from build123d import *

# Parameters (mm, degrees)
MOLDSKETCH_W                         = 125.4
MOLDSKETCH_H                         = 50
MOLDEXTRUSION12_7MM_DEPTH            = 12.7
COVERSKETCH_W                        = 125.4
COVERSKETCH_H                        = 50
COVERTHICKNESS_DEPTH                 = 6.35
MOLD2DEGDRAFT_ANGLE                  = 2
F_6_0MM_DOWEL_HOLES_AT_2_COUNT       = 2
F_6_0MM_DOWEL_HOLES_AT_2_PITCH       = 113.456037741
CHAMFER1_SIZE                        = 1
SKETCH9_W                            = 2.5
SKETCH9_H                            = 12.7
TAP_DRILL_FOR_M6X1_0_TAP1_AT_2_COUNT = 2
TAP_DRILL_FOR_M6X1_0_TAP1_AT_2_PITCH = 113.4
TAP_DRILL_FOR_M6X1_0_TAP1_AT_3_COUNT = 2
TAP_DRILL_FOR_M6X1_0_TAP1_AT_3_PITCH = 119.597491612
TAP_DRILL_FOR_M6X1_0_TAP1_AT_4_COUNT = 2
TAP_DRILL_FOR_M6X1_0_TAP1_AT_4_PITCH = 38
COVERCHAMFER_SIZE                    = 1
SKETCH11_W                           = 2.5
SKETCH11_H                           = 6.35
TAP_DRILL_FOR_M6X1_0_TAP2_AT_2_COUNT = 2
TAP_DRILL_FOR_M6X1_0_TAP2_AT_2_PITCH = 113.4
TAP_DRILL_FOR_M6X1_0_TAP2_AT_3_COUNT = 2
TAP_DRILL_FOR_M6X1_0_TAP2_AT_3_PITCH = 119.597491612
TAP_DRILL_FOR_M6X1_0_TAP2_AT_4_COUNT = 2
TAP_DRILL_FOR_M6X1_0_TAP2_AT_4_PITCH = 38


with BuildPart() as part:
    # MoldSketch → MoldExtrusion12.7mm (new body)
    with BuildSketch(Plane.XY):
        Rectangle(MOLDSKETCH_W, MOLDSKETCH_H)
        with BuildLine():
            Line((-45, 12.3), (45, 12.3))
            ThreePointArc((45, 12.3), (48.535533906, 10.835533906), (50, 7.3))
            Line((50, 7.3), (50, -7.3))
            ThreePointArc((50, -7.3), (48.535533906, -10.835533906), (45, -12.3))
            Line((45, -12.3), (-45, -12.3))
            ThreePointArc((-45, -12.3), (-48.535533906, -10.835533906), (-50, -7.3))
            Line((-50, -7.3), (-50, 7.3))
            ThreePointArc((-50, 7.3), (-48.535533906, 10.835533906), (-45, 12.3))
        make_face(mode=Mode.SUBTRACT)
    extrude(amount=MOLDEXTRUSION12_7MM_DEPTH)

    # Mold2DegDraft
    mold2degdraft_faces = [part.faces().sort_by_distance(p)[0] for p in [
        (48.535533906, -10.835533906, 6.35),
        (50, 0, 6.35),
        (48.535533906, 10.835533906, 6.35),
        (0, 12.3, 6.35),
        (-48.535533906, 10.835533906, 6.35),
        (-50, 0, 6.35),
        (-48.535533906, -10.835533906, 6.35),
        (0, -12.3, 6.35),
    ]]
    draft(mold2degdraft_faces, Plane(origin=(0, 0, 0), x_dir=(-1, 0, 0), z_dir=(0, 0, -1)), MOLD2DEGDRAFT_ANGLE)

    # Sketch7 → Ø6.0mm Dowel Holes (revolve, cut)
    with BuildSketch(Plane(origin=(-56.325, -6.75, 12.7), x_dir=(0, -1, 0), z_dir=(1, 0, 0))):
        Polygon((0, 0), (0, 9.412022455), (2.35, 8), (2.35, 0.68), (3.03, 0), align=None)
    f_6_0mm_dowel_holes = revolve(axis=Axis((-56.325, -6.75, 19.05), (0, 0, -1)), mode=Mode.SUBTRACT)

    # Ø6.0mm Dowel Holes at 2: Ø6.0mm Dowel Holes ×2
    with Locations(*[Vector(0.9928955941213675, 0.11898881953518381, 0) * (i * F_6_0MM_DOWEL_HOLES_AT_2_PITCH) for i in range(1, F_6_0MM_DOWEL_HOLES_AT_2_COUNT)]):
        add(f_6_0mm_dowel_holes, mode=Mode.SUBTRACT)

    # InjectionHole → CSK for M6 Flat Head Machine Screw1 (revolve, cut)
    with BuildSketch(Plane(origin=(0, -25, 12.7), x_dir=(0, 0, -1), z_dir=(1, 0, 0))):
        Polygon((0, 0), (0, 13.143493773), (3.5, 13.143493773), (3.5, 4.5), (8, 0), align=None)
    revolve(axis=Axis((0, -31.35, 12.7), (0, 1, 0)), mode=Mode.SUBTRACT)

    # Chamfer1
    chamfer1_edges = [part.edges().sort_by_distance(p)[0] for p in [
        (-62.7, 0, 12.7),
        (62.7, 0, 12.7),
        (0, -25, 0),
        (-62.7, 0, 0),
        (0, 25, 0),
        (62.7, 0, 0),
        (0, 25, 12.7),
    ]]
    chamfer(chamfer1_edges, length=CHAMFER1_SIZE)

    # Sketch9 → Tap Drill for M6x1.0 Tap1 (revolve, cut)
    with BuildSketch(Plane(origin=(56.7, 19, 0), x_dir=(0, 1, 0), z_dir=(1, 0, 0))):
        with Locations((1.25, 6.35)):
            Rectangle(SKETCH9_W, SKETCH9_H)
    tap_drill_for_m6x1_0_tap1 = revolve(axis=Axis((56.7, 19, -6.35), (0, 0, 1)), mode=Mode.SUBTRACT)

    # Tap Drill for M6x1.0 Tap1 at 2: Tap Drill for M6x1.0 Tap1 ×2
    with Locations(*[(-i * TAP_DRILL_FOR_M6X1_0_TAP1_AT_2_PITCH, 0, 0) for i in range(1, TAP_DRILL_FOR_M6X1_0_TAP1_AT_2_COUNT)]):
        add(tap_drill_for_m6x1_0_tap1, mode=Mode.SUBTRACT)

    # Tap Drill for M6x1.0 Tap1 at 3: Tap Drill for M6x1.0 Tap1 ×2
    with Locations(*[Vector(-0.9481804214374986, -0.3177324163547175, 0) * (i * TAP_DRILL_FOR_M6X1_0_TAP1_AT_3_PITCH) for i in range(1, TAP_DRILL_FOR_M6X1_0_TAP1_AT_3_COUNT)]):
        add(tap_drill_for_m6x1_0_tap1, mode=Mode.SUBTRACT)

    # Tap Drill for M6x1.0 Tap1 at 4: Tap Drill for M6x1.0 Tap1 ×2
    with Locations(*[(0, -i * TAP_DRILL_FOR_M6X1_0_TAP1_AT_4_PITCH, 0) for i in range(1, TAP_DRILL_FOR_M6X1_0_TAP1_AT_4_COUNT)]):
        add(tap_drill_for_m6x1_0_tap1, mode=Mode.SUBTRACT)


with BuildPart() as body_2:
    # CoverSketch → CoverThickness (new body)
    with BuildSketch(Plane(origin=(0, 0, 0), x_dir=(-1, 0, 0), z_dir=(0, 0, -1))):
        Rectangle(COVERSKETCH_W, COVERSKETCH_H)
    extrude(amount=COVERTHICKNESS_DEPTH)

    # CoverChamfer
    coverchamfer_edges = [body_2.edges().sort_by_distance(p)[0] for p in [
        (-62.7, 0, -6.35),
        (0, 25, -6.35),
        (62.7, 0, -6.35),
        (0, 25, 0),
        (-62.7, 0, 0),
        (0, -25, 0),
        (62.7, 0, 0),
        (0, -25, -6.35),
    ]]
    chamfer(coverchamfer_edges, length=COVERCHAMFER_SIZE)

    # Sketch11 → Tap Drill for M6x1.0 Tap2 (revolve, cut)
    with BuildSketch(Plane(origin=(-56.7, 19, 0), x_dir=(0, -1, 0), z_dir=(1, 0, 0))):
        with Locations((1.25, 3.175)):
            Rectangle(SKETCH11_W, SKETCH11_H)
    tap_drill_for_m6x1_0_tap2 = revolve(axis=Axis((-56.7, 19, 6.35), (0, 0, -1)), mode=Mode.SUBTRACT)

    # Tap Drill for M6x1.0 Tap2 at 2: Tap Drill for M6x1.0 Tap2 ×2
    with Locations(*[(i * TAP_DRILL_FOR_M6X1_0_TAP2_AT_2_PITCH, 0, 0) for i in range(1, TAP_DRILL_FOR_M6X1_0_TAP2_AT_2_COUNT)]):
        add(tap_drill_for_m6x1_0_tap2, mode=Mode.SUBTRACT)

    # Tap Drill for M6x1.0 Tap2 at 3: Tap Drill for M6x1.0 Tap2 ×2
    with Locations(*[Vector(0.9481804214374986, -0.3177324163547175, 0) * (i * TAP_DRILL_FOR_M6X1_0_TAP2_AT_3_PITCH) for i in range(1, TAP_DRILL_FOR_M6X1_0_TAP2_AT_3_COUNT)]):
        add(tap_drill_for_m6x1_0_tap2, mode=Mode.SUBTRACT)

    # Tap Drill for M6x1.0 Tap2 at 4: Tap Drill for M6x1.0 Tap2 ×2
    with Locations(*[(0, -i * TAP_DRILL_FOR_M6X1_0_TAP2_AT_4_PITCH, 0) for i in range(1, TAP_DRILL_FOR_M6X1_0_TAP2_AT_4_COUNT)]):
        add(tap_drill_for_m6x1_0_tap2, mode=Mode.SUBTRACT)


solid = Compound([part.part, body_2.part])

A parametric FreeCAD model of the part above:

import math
import FreeCAD as App
import Part
import Sketcher

V = App.Vector
Q = App.Units.Quantity


def edges_at(feature, points):
    """Names of the edges that pass closest to the given points."""
    edges = feature.Shape.Edges
    near = lambda p: min(range(len(edges)), key=lambda i: edges[i].distToShape(Part.Vertex(*p))[0])
    return sorted({f"Edge{near(p) + 1}" for p in points})


def faces_at(feature, points):
    """Names of the faces that lie closest to the given points."""
    faces = feature.Shape.Faces
    near = lambda p: min(range(len(faces)), key=lambda i: faces[i].distToShape(Part.Vertex(*p))[0])
    return sorted({f"Face{near(p) + 1}" for p in points})

doc = App.newDocument("Part")
body = doc.addObject("PartDesign::Body", "Body")

# Sketch on XY plane
sketch1 = doc.addObject("Sketcher::SketchObject", "Sketch")
body.addObject(sketch1)
sketch1.AttachmentSupport = (doc.XY_Plane, [""])
sketch1.MapMode = "FlatFace"
sketch1.addGeometry([
    Part.LineSegment(V(-63, 25, 0), V(-63, -25, 0)),  # 0
    Part.LineSegment(V(-63, -25, 0), V(63, -25, 0)),  # 1
    Part.LineSegment(V(63, -25, 0), V(63, 25, 0)),  # 2
    Part.LineSegment(V(63, 25, 0), V(-63, 25, 0)),  # 3
    Part.ArcOfCircle(Part.Circle(V(-45, 7, 0), V(0, 0, 1), 5), math.radians(90), math.radians(180)),  # 4
    Part.LineSegment(V(-45, 12, 0), V(45, 12, 0)),  # 5
    Part.ArcOfCircle(Part.Circle(V(45, 7, 0), V(0, 0, 1), 5), math.radians(0), math.radians(90)),  # 6
    Part.LineSegment(V(50, 7, 0), V(50, -7, 0)),  # 7
    Part.ArcOfCircle(Part.Circle(V(45, -7, 0), V(0, 0, 1), 5), math.radians(-90), math.radians(0)),  # 8
    Part.LineSegment(V(45, -12, 0), V(-45, -12, 0)),  # 9
    Part.ArcOfCircle(Part.Circle(V(-45, -7, 0), V(0, 0, 1), 5), math.radians(180), math.radians(270)),  # 10
    Part.LineSegment(V(-50, -7, 0), V(-50, 7, 0)),  # 11
], False)
sketch1.addConstraint([
    Sketcher.Constraint("Coincident", 0, 2, 1, 1),
    Sketcher.Constraint("Coincident", 1, 2, 2, 1),
    Sketcher.Constraint("Coincident", 2, 2, 3, 1),
    Sketcher.Constraint("Coincident", 3, 2, 0, 1),
    Sketcher.Constraint("Tangent", 4, 1, 5, 1),
    Sketcher.Constraint("Tangent", 5, 2, 6, 2),
    Sketcher.Constraint("Tangent", 6, 1, 7, 1),
    Sketcher.Constraint("Tangent", 7, 2, 8, 2),
    Sketcher.Constraint("Tangent", 8, 1, 9, 1),
    Sketcher.Constraint("Tangent", 9, 2, 10, 2),
    Sketcher.Constraint("Tangent", 10, 1, 11, 1),
    Sketcher.Constraint("Tangent", 11, 2, 4, 2),
    Sketcher.Constraint("Vertical", 0),
    Sketcher.Constraint("Horizontal", 1),
    Sketcher.Constraint("Vertical", 2),
    Sketcher.Constraint("Horizontal", 3),
    Sketcher.Constraint("Horizontal", 5),
    Sketcher.Constraint("Vertical", 7),
    Sketcher.Constraint("Horizontal", 9),
    Sketcher.Constraint("Vertical", 11),
    Sketcher.Constraint("Equal", 4, 6),
    Sketcher.Constraint("Equal", 6, 8),
    Sketcher.Constraint("Equal", 8, 10),
    Sketcher.Constraint("Symmetric", 4, 3, 8, 3, -1, 1),
    Sketcher.Constraint("Symmetric", 0, 2, 2, 2, -1, 1),
    Sketcher.Constraint("Radius", 4, Q("5 mm")),
    Sketcher.Constraint("DistanceX", 5, 1, 5, 2, Q("90 mm")),
    Sketcher.Constraint("DistanceY", 0, 2, 0, 1, Q("50 mm")),
    Sketcher.Constraint("DistanceX", 1, 1, 1, 2, Q("125.4 mm")),
    Sketcher.Constraint("DistanceY", 7, 2, 7, 1, Q("14.6 mm")),
])
pad1 = doc.addObject("PartDesign::Pad", "Pad")
body.addObject(pad1)
pad1.Profile = sketch1
pad1.Length = 12.7
doc.recompute()

draft = doc.addObject("PartDesign::Draft", "Draft")
body.addObject(draft)
draft.Base = (pad1, faces_at(pad1, [
    (48.536, -10.836, 6.35),
    (50, 0, 6.35),
    (48.536, 10.836, 6.35),
    (0, 12.3, 6.35),
    (-48.536, 10.836, 6.35),
    (-50, 0, 6.35),
    (-48.536, -10.836, 6.35),
    (0, -12.3, 6.35),
]))
draft.NeutralPlane = (doc.XY_Plane, [""])
draft.Angle = 2
draft.Reversed = True

# Sketch on YZ plane
sketch2 = doc.addObject("Sketcher::SketchObject", "Sketch001")
body.addObject(sketch2)
sketch2.AttachmentSupport = (doc.YZ_Plane, [""])
sketch2.MapMode = "FlatFace"
sketch2.AttachmentOffset = App.Placement(V(0, 0, -56.325), App.Rotation())
sketch2.addGeometry([
    Part.LineSegment(V(-6.8, 3.3, 0), V(-6.8, 12.7, 0)),  # 0
    Part.LineSegment(V(-6.8, 12.7, 0), V(-9.8, 12.7, 0)),  # 1
    Part.LineSegment(V(-9.8, 12.7, 0), V(-9.1, 12, 0)),  # 2
    Part.LineSegment(V(-9.1, 12, 0), V(-9.1, 4.7, 0)),  # 3
    Part.LineSegment(V(-9.1, 4.7, 0), V(-6.8, 3.3, 0)),  # 4
], False)
sketch2.addGeometry(Part.LineSegment(V(-6.8, 12.7, 0), V(-6.8, 3.3, 0)), True)  # axis
sketch2.addConstraint([
    Sketcher.Constraint("Coincident", 0, 2, 1, 1),
    Sketcher.Constraint("Coincident", 1, 2, 2, 1),
    Sketcher.Constraint("Coincident", 2, 2, 3, 1),
    Sketcher.Constraint("Coincident", 3, 2, 4, 1),
    Sketcher.Constraint("Coincident", 4, 2, 0, 1),
    Sketcher.Constraint("Vertical", 0),
    Sketcher.Constraint("Horizontal", 1),
    Sketcher.Constraint("Vertical", 3),
    Sketcher.Constraint("Vertical", 5),
    Sketcher.Constraint("Coincident", 5, 1, 0, 2),
    Sketcher.Constraint("Equal", 0, 5),
    Sketcher.Constraint("Angle", 2, Q("-45 deg")),
    Sketcher.Constraint("Angle", 4, Q("-31 deg")),
    Sketcher.Constraint("DistanceY", 3, 2, 1, 2, Q("8 mm")),
    Sketcher.Constraint("DistanceX", 1, 2, 1, 1, Q("3.03 mm")),
    Sketcher.Constraint("DistanceY", 3, 2, 3, 1, Q("7.32 mm")),
    Sketcher.Constraint("DistanceY", -1, 1, 0, 2, Q("12.7 mm")),
    Sketcher.Constraint("DistanceX", 2, 2, -1, 1, Q("9.1 mm")),
])
groove = doc.addObject("PartDesign::Groove", "Groove")
body.addObject(groove)
groove.Profile = sketch2
groove.ReferenceAxis = (sketch2, ["Axis0"])
groove.Angle = 360
doc.recompute()

datumline = doc.addObject("PartDesign::Line", "DatumLine")
body.addObject(datumline)
datumline.Placement = App.Placement(V(0, 0, 0), App.Rotation(V(0, 0, 1), V(0.992895594, 0.11898882, 0)))
linearpattern = doc.addObject("PartDesign::LinearPattern", "LinearPattern")
body.addObject(linearpattern)
linearpattern.Originals = [groove]
linearpattern.Direction = (datumline, [""])
linearpattern.Mode = "offset"
linearpattern.Offset = 113.456038
linearpattern.Occurrences = 2
body.Tip = linearpattern

# Sketch on YZ plane
sketch3 = doc.addObject("Sketcher::SketchObject", "Sketch002")
body.addObject(sketch3)
sketch3.AttachmentSupport = (doc.YZ_Plane, [""])
sketch3.MapMode = "FlatFace"
sketch3.addGeometry([
    Part.LineSegment(V(-11.9, 12.7, 0), V(-25, 12.7, 0)),  # 0
    Part.LineSegment(V(-25, 12.7, 0), V(-25, 4.7, 0)),  # 1
    Part.LineSegment(V(-25, 4.7, 0), V(-20.5, 9.2, 0)),  # 2
    Part.LineSegment(V(-20.5, 9.2, 0), V(-11.9, 9.2, 0)),  # 3
    Part.LineSegment(V(-11.9, 9.2, 0), V(-11.9, 12.7, 0)),  # 4
], False)
sketch3.addGeometry(Part.LineSegment(V(-25, 12.7, 0), V(-11.9, 12.7, 0)), True)  # axis
sketch3.addConstraint([
    Sketcher.Constraint("Coincident", 0, 2, 1, 1),
    Sketcher.Constraint("Coincident", 1, 2, 2, 1),
    Sketcher.Constraint("Coincident", 2, 2, 3, 1),
    Sketcher.Constraint("Coincident", 3, 2, 4, 1),
    Sketcher.Constraint("Coincident", 4, 2, 0, 1),
    Sketcher.Constraint("Horizontal", 0),
    Sketcher.Constraint("Vertical", 1),
    Sketcher.Constraint("Horizontal", 3),
    Sketcher.Constraint("Vertical", 4),
    Sketcher.Constraint("Horizontal", 5),
    Sketcher.Constraint("Coincident", 5, 1, 0, 2),
    Sketcher.Constraint("Vertical", 3, 2, 5, 2),
    Sketcher.Constraint("DistanceY", 1, 2, 1, 1, Q("8 mm")),
    Sketcher.Constraint("Angle", 2, Q("45 deg")),
    Sketcher.Constraint("DistanceY", 4, 1, 4, 2, Q("3.5 mm")),
    Sketcher.Constraint("DistanceX", 0, 2, -1, 1, Q("25 mm")),
    Sketcher.Constraint("DistanceY", -1, 1, 0, 2, Q("12.7 mm")),
    Sketcher.Constraint("DistanceX", 0, 2, 0, 1, Q("13.143494 mm")),
])
groove2 = doc.addObject("PartDesign::Groove", "Groove001")
body.addObject(groove2)
groove2.Profile = sketch3
groove2.ReferenceAxis = (sketch3, ["Axis0"])
groove2.Angle = 360
doc.recompute()

chamfer = doc.addObject("PartDesign::Chamfer", "Chamfer")
body.addObject(chamfer)
chamfer.Base = (groove2, edges_at(groove2, [
    (-62.7, 0, 12.7),
    (62.7, 0, 12.7),
    (0, -25, 0),
    (-62.7, 0, 0),
    (0, 25, 0),
    (62.7, 0, 0),
    (0, 25, 12.7),
]))
chamfer.Size = 1

# Sketch on YZ plane
sketch4 = doc.addObject("Sketcher::SketchObject", "Sketch003")
body.addObject(sketch4)
sketch4.AttachmentSupport = (doc.YZ_Plane, [""])
sketch4.MapMode = "FlatFace"
sketch4.AttachmentOffset = App.Placement(V(0, 0, 56.7), App.Rotation())
sketch4.addGeometry([
    Part.LineSegment(V(19, 12.7, 0), V(19, 0, 0)),
    Part.LineSegment(V(19, 0, 0), V(21.5, 0, 0)),
    Part.LineSegment(V(21.5, 0, 0), V(21.5, 12.7, 0)),
    Part.LineSegment(V(21.5, 12.7, 0), V(19, 12.7, 0)),
], False)
sketch4.addGeometry(Part.LineSegment(V(19, 0, 0), V(19, 12.7, 0)), True)  # axis
sketch4.addConstraint([
    Sketcher.Constraint("Coincident", 0, 2, 1, 1),
    Sketcher.Constraint("Coincident", 1, 2, 2, 1),
    Sketcher.Constraint("Coincident", 2, 2, 3, 1),
    Sketcher.Constraint("Coincident", 3, 2, 0, 1),
    Sketcher.Constraint("Vertical", 0),
    Sketcher.Constraint("Horizontal", 1),
    Sketcher.Constraint("Vertical", 2),
    Sketcher.Constraint("Horizontal", 3),
    Sketcher.Constraint("Vertical", 4),
    Sketcher.Constraint("Coincident", 4, 1, 0, 2),
    Sketcher.Constraint("PointOnObject", 0, 2, -1),
    Sketcher.Constraint("Horizontal", 2, 2, 4, 2),
    Sketcher.Constraint("DistanceX", 1, 1, 1, 2, Q("2.5 mm")),
    Sketcher.Constraint("DistanceY", 0, 2, 0, 1, Q("12.7 mm")),
    Sketcher.Constraint("DistanceX", -1, 1, 0, 2, Q("19 mm")),
])
groove3 = doc.addObject("PartDesign::Groove", "Groove002")
body.addObject(groove3)
groove3.Profile = sketch4
groove3.ReferenceAxis = (sketch4, ["Axis0"])
groove3.Angle = 360
doc.recompute()

linearpattern2 = doc.addObject("PartDesign::LinearPattern", "LinearPattern001")
body.addObject(linearpattern2)
linearpattern2.Originals = [groove3]
linearpattern2.Direction = (doc.X_Axis, [""])
linearpattern2.Mode = "offset"
linearpattern2.Offset = 113.4
linearpattern2.Occurrences = 2
linearpattern2.Reversed = True
body.Tip = linearpattern2
doc.recompute()

datumline2 = doc.addObject("PartDesign::Line", "DatumLine001")
body.addObject(datumline2)
datumline2.Placement = App.Placement(V(0, 0, 0), App.Rotation(V(0, 0, 1), V(-0.948180421, -0.317732416, 0)))
linearpattern3 = doc.addObject("PartDesign::LinearPattern", "LinearPattern002")
body.addObject(linearpattern3)
linearpattern3.Originals = [groove3]
linearpattern3.Direction = (datumline2, [""])
linearpattern3.Mode = "offset"
linearpattern3.Offset = 119.597492
linearpattern3.Occurrences = 2
body.Tip = linearpattern3
doc.recompute()

linearpattern4 = doc.addObject("PartDesign::LinearPattern", "LinearPattern003")
body.addObject(linearpattern4)
linearpattern4.Originals = [groove3]
linearpattern4.Direction = (doc.Y_Axis, [""])
linearpattern4.Mode = "offset"
linearpattern4.Offset = 38
linearpattern4.Occurrences = 2
linearpattern4.Reversed = True
body.Tip = linearpattern4
body2 = doc.addObject("PartDesign::Body", "Body001")

# Sketch on XY plane
sketch5 = doc.addObject("Sketcher::SketchObject", "Sketch004")
body2.addObject(sketch5)
sketch5.AttachmentSupport = (doc.getObject("XY_Plane001"), [""])
sketch5.MapMode = "FlatFace"
sketch5.addGeometry([
    Part.LineSegment(V(63, 25, 0), V(63, -25, 0)),
    Part.LineSegment(V(63, -25, 0), V(-63, -25, 0)),
    Part.LineSegment(V(-63, -25, 0), V(-63, 25, 0)),
    Part.LineSegment(V(-63, 25, 0), V(63, 25, 0)),
], False)
sketch5.addConstraint([
    Sketcher.Constraint("Coincident", 0, 2, 1, 1),
    Sketcher.Constraint("Coincident", 1, 2, 2, 1),
    Sketcher.Constraint("Coincident", 2, 2, 3, 1),
    Sketcher.Constraint("Coincident", 3, 2, 0, 1),
    Sketcher.Constraint("Vertical", 0),
    Sketcher.Constraint("Horizontal", 1),
    Sketcher.Constraint("Vertical", 2),
    Sketcher.Constraint("Horizontal", 3),
    Sketcher.Constraint("Symmetric", 0, 2, 2, 2, -1, 1),
    Sketcher.Constraint("DistanceY", 0, 2, 0, 1, Q("50 mm")),
    Sketcher.Constraint("DistanceX", 1, 2, 1, 1, Q("125.4 mm")),
])
pad2 = doc.addObject("PartDesign::Pad", "Pad001")
body2.addObject(pad2)
pad2.Profile = sketch5
pad2.Length = 6.35
pad2.Reversed = True
doc.recompute()

chamfer2 = doc.addObject("PartDesign::Chamfer", "Chamfer001")
body2.addObject(chamfer2)
chamfer2.Base = (pad2, edges_at(pad2, [
    (-62.7, 0, -6.35),
    (0, 25, -6.35),
    (62.7, 0, -6.35),
    (0, 25, 0),
    (-62.7, 0, 0),
    (0, -25, 0),
    (62.7, 0, 0),
    (0, -25, -6.35),
]))
chamfer2.Size = 1

# Sketch on YZ plane
sketch6 = doc.addObject("Sketcher::SketchObject", "Sketch005")
body2.addObject(sketch6)
sketch6.AttachmentSupport = (doc.getObject("YZ_Plane001"), [""])
sketch6.MapMode = "FlatFace"
sketch6.AttachmentOffset = App.Placement(V(0, 0, -56.7), App.Rotation())
sketch6.addGeometry([
    Part.LineSegment(V(19, -6.3, 0), V(19, 0, 0)),
    Part.LineSegment(V(19, 0, 0), V(16.5, 0, 0)),
    Part.LineSegment(V(16.5, 0, 0), V(16.5, -6.3, 0)),
    Part.LineSegment(V(16.5, -6.3, 0), V(19, -6.3, 0)),
], False)
sketch6.addGeometry(Part.LineSegment(V(19, 0, 0), V(19, -6.3, 0)), True)  # axis
sketch6.addConstraint([
    Sketcher.Constraint("Coincident", 0, 2, 1, 1),
    Sketcher.Constraint("Coincident", 1, 2, 2, 1),
    Sketcher.Constraint("Coincident", 2, 2, 3, 1),
    Sketcher.Constraint("Coincident", 3, 2, 0, 1),
    Sketcher.Constraint("Vertical", 0),
    Sketcher.Constraint("Horizontal", 1),
    Sketcher.Constraint("Vertical", 2),
    Sketcher.Constraint("Horizontal", 3),
    Sketcher.Constraint("Vertical", 4),
    Sketcher.Constraint("Coincident", 4, 1, 0, 2),
    Sketcher.Constraint("PointOnObject", 0, 2, -1),
    Sketcher.Constraint("Horizontal", 2, 2, 4, 2),
    Sketcher.Constraint("DistanceX", 1, 2, 1, 1, Q("2.5 mm")),
    Sketcher.Constraint("DistanceX", -1, 1, 0, 2, Q("19 mm")),
    Sketcher.Constraint("DistanceY", 0, 1, 0, 2, Q("6.35 mm")),
])
groove4 = doc.addObject("PartDesign::Groove", "Groove003")
body2.addObject(groove4)
groove4.Profile = sketch6
groove4.ReferenceAxis = (sketch6, ["Axis0"])
groove4.Angle = 360
doc.recompute()

linearpattern5 = doc.addObject("PartDesign::LinearPattern", "LinearPattern004")
body2.addObject(linearpattern5)
linearpattern5.Originals = [groove4]
linearpattern5.Direction = (doc.getObject("X_Axis001"), [""])
linearpattern5.Mode = "offset"
linearpattern5.Offset = 113.4
linearpattern5.Occurrences = 2
body2.Tip = linearpattern5
doc.recompute()

datumline3 = doc.addObject("PartDesign::Line", "DatumLine002")
body2.addObject(datumline3)
datumline3.Placement = App.Placement(V(0, 0, 0), App.Rotation(V(0, 0, 1), V(0.948180421, -0.317732416, 0)))
linearpattern6 = doc.addObject("PartDesign::LinearPattern", "LinearPattern005")
body2.addObject(linearpattern6)
linearpattern6.Originals = [groove4]
linearpattern6.Direction = (datumline3, [""])
linearpattern6.Mode = "offset"
linearpattern6.Offset = 119.597492
linearpattern6.Occurrences = 2
body2.Tip = linearpattern6
doc.recompute()

linearpattern7 = doc.addObject("PartDesign::LinearPattern", "LinearPattern006")
body2.addObject(linearpattern7)
linearpattern7.Originals = [groove4]
linearpattern7.Direction = (doc.getObject("Y_Axis001"), [""])
linearpattern7.Mode = "offset"
linearpattern7.Offset = 38
linearpattern7.Occurrences = 2
linearpattern7.Reversed = True
body2.Tip = linearpattern7

doc.recompute()
